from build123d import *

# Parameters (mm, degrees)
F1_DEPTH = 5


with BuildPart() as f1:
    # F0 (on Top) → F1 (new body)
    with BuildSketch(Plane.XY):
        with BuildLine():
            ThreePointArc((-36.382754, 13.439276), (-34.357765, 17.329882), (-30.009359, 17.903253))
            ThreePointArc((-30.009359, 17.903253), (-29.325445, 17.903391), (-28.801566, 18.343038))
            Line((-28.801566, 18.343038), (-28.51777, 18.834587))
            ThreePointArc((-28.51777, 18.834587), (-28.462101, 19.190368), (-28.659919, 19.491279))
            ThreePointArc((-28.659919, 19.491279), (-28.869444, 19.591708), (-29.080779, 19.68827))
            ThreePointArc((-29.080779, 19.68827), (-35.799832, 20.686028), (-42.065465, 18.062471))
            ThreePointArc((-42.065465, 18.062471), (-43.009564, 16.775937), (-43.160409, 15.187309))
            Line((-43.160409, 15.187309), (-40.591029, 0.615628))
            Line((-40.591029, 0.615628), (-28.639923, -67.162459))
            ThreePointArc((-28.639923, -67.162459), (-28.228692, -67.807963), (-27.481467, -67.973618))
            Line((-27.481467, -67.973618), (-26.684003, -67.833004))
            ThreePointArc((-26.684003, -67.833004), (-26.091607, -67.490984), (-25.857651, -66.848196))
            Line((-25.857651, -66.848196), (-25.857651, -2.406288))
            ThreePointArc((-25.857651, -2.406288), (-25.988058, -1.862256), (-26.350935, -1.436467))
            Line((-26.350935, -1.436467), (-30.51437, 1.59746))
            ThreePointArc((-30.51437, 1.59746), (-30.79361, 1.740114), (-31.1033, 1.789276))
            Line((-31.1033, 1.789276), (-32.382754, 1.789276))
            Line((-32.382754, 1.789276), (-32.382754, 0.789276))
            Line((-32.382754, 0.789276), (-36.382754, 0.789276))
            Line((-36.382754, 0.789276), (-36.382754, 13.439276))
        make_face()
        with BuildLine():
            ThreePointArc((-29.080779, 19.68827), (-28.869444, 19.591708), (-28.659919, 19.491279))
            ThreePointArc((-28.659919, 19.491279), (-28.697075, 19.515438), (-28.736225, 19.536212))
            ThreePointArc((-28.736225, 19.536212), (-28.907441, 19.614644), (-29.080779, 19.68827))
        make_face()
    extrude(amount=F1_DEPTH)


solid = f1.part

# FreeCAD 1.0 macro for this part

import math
import FreeCAD as App
import Part
import Sketcher
from FreeCAD import Vector
Q = App.Units.Quantity

doc = App.newDocument("Part")
body = doc.addObject("PartDesign::Body", "Body")

# Sketch on XY plane
sketch1 = doc.addObject("Sketcher::SketchObject", "Sketch")
body.addObject(sketch1)
sketch1.AttachmentSupport = (doc.XY_Plane, [""])
sketch1.MapMode = "FlatFace"
sketch1.addGeometry([
    Part.ArcOfCircle(Part.Circle(Vector(-31.632754, 13.439276, 0), Vector(0, 0, 1), 4.75), math.radians(70.015416), math.radians(179.999998)),  # 0
    Part.ArcOfCircle(Part.Circle(Vector(-29.667592, 18.843038, 0), Vector(0, 0, 1), 1), math.radians(-109.984591), math.radians(-29.99997)),  # 1
    Part.LineSegment(Vector(-28.801566, 18.343038, 0), Vector(-28.51777, 18.834587, 0)),  # 2
    Part.ArcOfCircle(Part.Circle(Vector(-28.950785, 19.084587, 0), Vector(0, 0, 1), 0.500002), math.radians(-29.999823), math.radians(54.427689)),  # 3
    Part.ArcOfCircle(Part.Circle(Vector(-28.950774, 19.084603, 0), Vector(0, 0, 1), 0.499982), math.radians(54.427648), math.radians(64.588708)),  # 4
    Part.ArcOfCircle(Part.Circle(Vector(-31.633111, 13.438447, 0), Vector(0, 0, 1), 6.750902), math.radians(64.588854), math.radians(67.785651)),  # 5
    Part.ArcOfCircle(Part.Circle(Vector(-34.2291, 8.141138, 0), Vector(0, 0, 1), 12.642843), math.radians(65.970165), math.radians(128.303443)),  # 6
    Part.ArcOfCircle(Part.Circle(Vector(-40.205983, 15.708253, 0), Vector(0, 0, 1), 3.000003), math.radians(128.303489), math.radians(189.99998)),  # 7
    Part.LineSegment(Vector(-43.160409, 15.187309, 0), Vector(-40.591029, 0.615628, 0)),  # 8
    Part.LineSegment(Vector(-40.591029, 0.615628, 0), Vector(-28.639923, -67.162459, 0)),  # 9
    Part.ArcOfCircle(Part.Circle(Vector(-27.655117, -66.988812, 0), Vector(0, 0, 1), 0.999998), math.radians(-170.000063), math.radians(-79.999896)),  # 10
    Part.LineSegment(Vector(-27.481467, -67.973618, 0), Vector(-26.684003, -67.833004, 0)),  # 11
    Part.ArcOfCircle(Part.Circle(Vector(-26.857652, -66.848196, 0), Vector(0, 0, 1), 1.000001), math.radians(-79.999975), math.radians(-0.000023)),  # 12
    Part.LineSegment(Vector(-25.857651, -66.848196, 0), Vector(-25.857651, -2.406288, 0)),  # 13
    Part.ArcOfCircle(Part.Circle(Vector(-27.057652, -2.406288, 0), Vector(0, 0, 1), 1.200001), math.radians(0.000006), math.radians(53.918873)),  # 14
    Part.LineSegment(Vector(-26.350935, -1.436467, 0), Vector(-30.51437, 1.59746, 0)),  # 15
    Part.ArcOfCircle(Part.Circle(Vector(-31.103297, 0.789284, 0), Vector(0, 0, 1), 0.999992), math.radians(53.918729), math.radians(90.000148)),  # 16
    Part.LineSegment(Vector(-31.1033, 1.789276, 0), Vector(-32.382754, 1.789276, 0)),  # 17
    Part.LineSegment(Vector(-32.382754, 1.789276, 0), Vector(-32.382754, 0.789276, 0)),  # 18
    Part.LineSegment(Vector(-32.382754, 0.789276, 0), Vector(-36.382754, 0.789276, 0)),  # 19
    Part.LineSegment(Vector(-36.382754, 0.789276, 0), Vector(-36.382754, 13.439276, 0)),  # 20
], False)
sketch1.addConstraint([
    Sketcher.Constraint("Tangent", 0, 1, 1, 1),
    Sketcher.Constraint("Tangent", 1, 2, 2, 1),
    Sketcher.Constraint("Coincident", 2, 2, 3, 1),
    Sketcher.Constraint("Tangent", 3, 2, 4, 1),
    Sketcher.Constraint("Coincident", 4, 2, 5, 1),
    Sketcher.Constraint("Coincident", 5, 2, 6, 1),
    Sketcher.Constraint("Tangent", 6, 2, 7, 1),
    Sketcher.Constraint("Tangent", 7, 2, 8, 1),
    Sketcher.Constraint("Coincident", 8, 2, 9, 1),
    Sketcher.Constraint("Tangent", 9, 2, 10, 1),
    Sketcher.Constraint("Coincident", 10, 2, 11, 1),
    Sketcher.Constraint("Tangent", 11, 2, 12, 1),
    Sketcher.Constraint("Tangent", 12, 2, 13, 1),
    Sketcher.Constraint("Tangent", 13, 2, 14, 1),
    Sketcher.Constraint("Tangent", 14, 2, 15, 1),
    Sketcher.Constraint("Coincident", 15, 2, 16, 1),
    Sketcher.Constraint("Coincident", 16, 2, 17, 1),
    Sketcher.Constraint("Coincident", 17, 2, 18, 1),
    Sketcher.Constraint("Coincident", 18, 2, 19, 1),
    Sketcher.Constraint("Coincident", 19, 2, 20, 1),
    Sketcher.Constraint("Tangent", 20, 2, 0, 2),
    Sketcher.Constraint("Vertical", 13),
    Sketcher.Constraint("Horizontal", 17),
    Sketcher.Constraint("Vertical", 18),
    Sketcher.Constraint("Horizontal", 19),
    Sketcher.Constraint("Vertical", 20),
    Sketcher.Constraint("Equal", 1, 10),
    Sketcher.Constraint("Equal", 1, 12),
    Sketcher.Constraint("Parallel", 8, 9),
    Sketcher.Constraint("Perpendicular", 9, 11),
    Sketcher.Constraint("Radius", 1, 1.0),
    Sketcher.Constraint("Radius", 3, 0.500002),
    Sketcher.Constraint("Radius", 14, 1.200001),
    Sketcher.Constraint("DistanceX", 19, 2, 19, 1, 4.0),
    Sketcher.Constraint("DistanceY", 18, 2, 18, 1, 1.0),
    Sketcher.Constraint("Angle", 2, Q("59.999995 deg")),
    Sketcher.Constraint("Angle", 8, Q("-80.000002 deg")),
    Sketcher.Constraint("Radius", 0, 4.75),
    Sketcher.Constraint("DistanceY", 20, 1, 20, 2, 12.65),
    Sketcher.Constraint("Radius", 16, 0.999992),
    Sketcher.Constraint("DistanceY", 2, 2, 3, 3, 0.25),
    Sketcher.Constraint("Radius", 4, 0.499982),
    Sketcher.Constraint("Radius", 5, 6.750902),
    Sketcher.Constraint("Radius", 6, 12.642843),
    Sketcher.Constraint("Radius", 7, 3.000003),
    Sketcher.Constraint("DistanceY", 13, 1, 13, 2, 64.441908),
    Sketcher.Constraint("DistanceX", 6, 3, -1, 1, 34.2291),
    Sketcher.Constraint("DistanceX", 16, 2, -1, 1, 31.1033),
    Sketcher.Constraint("DistanceY", 6, 3, 1, 3, 10.7019),
    Sketcher.Constraint("DistanceX", 7, 2, 5, 3, 11.527298),
    Sketcher.Constraint("Distance", 2, 0.567592),
    Sketcher.Constraint("DistanceX", 17, 2, 17, 1, 1.279454),
    Sketcher.Constraint("DistanceX", 1, 3, -1, 1, 29.667592),
    Sketcher.Constraint("DistanceX", 5, 3, -1, 1, 31.633111),
    Sketcher.Constraint("DistanceX", 12, 3, -1, 1, 26.857652),
    Sketcher.Constraint("DistanceY", 14, 3, -1, 1, 2.406288),
    Sketcher.Constraint("DistanceY", -1, 1, 1, 2, 18.343038),
    Sketcher.Constraint("DistanceX", 3, 2, -1, 1, 28.659919),
    Sketcher.Constraint("DistanceY", -1, 1, 4, 2, 19.536212),
    Sketcher.Constraint("DistanceX", 8, 2, -1, 1, 40.591029),
    Sketcher.Constraint("DistanceX", 15, 2, -1, 1, 30.51437),
    Sketcher.Constraint("DistanceY", -1, 1, 15, 2, 1.59746),
    Sketcher.Constraint("DistanceX", 10, 3, 10, 2, 0.17365),
])
pad1 = doc.addObject("PartDesign::Pad", "Pad")
body.addObject(pad1)
pad1.Profile = sketch1
pad1.Length = 5

doc.recompute()
